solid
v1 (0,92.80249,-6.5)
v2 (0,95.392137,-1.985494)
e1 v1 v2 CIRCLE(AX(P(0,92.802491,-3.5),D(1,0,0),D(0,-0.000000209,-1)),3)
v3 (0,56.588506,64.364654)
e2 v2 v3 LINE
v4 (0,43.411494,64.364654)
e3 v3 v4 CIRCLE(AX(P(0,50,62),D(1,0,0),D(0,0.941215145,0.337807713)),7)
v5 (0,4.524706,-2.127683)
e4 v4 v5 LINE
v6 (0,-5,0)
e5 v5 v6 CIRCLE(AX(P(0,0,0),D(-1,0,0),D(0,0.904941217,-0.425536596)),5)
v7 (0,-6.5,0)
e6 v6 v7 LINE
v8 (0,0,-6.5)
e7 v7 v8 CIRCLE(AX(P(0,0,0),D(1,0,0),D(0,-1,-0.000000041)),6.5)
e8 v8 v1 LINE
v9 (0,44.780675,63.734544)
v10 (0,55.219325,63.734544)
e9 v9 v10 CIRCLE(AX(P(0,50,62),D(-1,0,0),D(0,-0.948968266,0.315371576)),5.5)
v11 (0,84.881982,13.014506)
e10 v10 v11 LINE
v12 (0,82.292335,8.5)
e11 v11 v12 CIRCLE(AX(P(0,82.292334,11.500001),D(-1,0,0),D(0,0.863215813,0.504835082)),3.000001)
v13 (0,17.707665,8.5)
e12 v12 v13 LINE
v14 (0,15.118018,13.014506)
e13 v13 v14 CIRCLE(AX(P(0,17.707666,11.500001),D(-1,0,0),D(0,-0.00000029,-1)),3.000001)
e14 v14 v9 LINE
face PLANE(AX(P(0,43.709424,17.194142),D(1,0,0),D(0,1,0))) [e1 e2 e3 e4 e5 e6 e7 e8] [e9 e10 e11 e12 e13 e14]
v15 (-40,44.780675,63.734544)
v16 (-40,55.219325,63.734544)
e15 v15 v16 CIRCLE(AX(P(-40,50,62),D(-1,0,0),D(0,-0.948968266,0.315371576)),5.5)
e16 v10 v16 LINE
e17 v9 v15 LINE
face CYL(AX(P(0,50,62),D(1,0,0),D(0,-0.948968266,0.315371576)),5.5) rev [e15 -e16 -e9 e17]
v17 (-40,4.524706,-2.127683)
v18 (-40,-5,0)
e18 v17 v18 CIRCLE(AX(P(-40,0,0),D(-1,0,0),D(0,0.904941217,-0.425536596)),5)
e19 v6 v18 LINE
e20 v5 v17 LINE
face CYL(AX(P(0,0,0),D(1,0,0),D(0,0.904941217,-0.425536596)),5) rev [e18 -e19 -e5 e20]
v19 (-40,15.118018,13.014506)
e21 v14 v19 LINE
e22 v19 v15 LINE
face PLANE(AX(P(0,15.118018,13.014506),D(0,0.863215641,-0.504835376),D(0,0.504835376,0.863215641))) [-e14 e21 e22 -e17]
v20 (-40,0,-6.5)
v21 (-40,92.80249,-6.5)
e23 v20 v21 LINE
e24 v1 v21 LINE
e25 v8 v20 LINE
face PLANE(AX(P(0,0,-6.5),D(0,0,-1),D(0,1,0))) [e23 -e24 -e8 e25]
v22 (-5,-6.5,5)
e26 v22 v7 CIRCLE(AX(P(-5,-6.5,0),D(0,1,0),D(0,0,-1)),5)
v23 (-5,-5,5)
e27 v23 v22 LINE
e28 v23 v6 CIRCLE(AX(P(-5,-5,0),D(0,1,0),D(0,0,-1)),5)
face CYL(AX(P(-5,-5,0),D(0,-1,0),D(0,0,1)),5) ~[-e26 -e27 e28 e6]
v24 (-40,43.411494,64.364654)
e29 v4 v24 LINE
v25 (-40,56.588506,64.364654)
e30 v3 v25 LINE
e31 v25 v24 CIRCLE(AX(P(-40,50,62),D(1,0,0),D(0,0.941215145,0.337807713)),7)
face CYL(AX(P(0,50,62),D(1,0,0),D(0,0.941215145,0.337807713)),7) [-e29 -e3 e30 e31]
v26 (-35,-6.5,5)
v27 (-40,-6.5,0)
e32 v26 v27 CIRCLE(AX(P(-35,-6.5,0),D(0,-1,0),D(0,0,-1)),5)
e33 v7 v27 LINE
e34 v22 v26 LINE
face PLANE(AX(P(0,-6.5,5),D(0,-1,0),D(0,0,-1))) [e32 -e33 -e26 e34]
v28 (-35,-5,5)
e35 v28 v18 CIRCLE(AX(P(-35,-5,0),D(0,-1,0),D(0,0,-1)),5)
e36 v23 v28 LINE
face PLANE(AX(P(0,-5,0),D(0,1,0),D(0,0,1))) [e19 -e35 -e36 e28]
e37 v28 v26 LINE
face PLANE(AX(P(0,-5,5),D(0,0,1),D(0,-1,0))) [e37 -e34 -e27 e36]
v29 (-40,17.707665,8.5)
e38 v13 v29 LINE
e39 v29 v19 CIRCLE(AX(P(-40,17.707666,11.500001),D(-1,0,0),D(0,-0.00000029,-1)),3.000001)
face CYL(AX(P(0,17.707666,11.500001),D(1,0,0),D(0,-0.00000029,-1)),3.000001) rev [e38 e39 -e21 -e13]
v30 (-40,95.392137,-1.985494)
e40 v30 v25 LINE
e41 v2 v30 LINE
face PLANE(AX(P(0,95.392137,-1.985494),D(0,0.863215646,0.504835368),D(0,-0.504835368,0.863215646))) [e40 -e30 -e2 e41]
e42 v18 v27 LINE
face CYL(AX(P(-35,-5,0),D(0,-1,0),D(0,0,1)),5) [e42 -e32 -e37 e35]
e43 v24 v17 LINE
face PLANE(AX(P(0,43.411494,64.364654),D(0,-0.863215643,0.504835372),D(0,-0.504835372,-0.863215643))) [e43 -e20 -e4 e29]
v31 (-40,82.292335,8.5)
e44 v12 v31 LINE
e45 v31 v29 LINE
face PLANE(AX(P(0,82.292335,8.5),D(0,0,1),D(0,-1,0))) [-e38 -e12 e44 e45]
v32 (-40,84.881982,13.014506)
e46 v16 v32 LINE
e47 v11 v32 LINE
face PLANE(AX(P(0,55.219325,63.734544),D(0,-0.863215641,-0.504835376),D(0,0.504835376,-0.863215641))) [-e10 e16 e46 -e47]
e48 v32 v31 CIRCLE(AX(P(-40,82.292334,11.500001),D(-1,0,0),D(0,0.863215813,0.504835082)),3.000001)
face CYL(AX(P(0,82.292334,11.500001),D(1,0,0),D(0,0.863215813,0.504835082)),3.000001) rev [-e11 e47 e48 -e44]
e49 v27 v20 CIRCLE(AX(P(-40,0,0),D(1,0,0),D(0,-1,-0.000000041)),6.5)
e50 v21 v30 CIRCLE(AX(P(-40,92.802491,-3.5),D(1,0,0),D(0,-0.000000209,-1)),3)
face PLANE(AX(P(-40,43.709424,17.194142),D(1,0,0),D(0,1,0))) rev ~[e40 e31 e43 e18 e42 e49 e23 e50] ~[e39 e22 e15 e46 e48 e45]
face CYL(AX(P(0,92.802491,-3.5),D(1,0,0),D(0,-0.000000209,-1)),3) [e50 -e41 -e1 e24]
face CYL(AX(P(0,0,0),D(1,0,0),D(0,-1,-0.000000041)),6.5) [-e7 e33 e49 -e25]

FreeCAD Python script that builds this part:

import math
import FreeCAD as App
import Part
import Sketcher

V = App.Vector
Q = App.Units.Quantity


def edges_at(feature, points):
    """Names of the edges that pass closest to the given points."""
    edges = feature.Shape.Edges
    near = lambda p: min(range(len(edges)), key=lambda i: edges[i].distToShape(Part.Vertex(*p))[0])
    return sorted({f"Edge{near(p) + 1}" for p in points})

doc = App.newDocument("Part")
params = doc.addObject("Spreadsheet::Sheet", "Params")
for row, (alias, value) in enumerate([
    ("sketch1_radius", "3 mm"),
    ("sketch1_radius2", "7 mm"),
    ("sketch1_radius3", "5 mm"),
    ("sketch1_radius4", "6.5 mm"),
    ("sketch1_radius5", "5.5 mm"),
    ("pad1_length", "40 mm"),
    ("fillet_radius", "5 mm"),
], start=1):
    params.set(f"A{row}", alias)
    params.set(f"B{row}", "=" + value)
    params.setAlias(f"B{row}", alias)

body = doc.addObject("PartDesign::Body", "Body")

# Sketch on YZ plane
sketch1 = body.newObject("Sketcher::SketchObject", "Sketch")
sketch1.AttachmentSupport = (doc.getObject("YZ_Plane"), [""])
sketch1.MapMode = "FlatFace"
sketch1.addGeometry(Part.LineSegment(V(-6.5, 5, 0), V(-6.5, 0, 0)), False)
sketch1.addGeometry(Part.ArcOfCircle(Part.Circle(V(0, 0, 0), V(0, 0, 1), 6.5), math.radians(-180), math.radians(-90)), False)
sketch1.addGeometry(Part.LineSegment(V(0, -6.5, 0), V(92.8, -6.5, 0)), False)
sketch1.addGeometry(Part.ArcOfCircle(Part.Circle(V(92.8, -3.5, 0), V(0, 0, 1), 3), math.radians(-90), math.radians(30)), False)
sketch1.addGeometry(Part.LineSegment(V(95.4, -2, 0), V(56.6, 64.4, 0)), False)
sketch1.addGeometry(Part.ArcOfCircle(Part.Circle(V(50, 62, 0), V(0, 0, 1), 7), math.radians(20), math.radians(160)), False)
sketch1.addGeometry(Part.LineSegment(V(43.4, 64.4, 0), V(4.5, -2.1, 0)), False)
sketch1.addGeometry(Part.ArcOfCircle(Part.Circle(V(0, 0, 0), V(0, 0, 1), 5), math.radians(180), math.radians(335)), False)
sketch1.addGeometry(Part.LineSegment(V(-5, 0, 0), V(-5, 5, 0)), False)
sketch1.addGeometry(Part.LineSegment(V(-5, 5, 0), V(-6.5, 5, 0)), False)
sketch1.addGeometry(Part.ArcOfCircle(Part.Circle(V(82.3, 11.5, 0), V(0, 0, 1), 3), math.radians(-90), math.radians(30)), False)
sketch1.addGeometry(Part.LineSegment(V(82.3, 8.5, 0), V(17.7, 8.5, 0)), False)
sketch1.addGeometry(Part.ArcOfCircle(Part.Circle(V(17.7, 11.5, 0), V(0, 0, 1), 3), math.radians(150), math.radians(270)), False)
sketch1.addGeometry(Part.LineSegment(V(15.1, 13, 0), V(44.8, 63.7, 0)), False)
sketch1.addGeometry(Part.ArcOfCircle(Part.Circle(V(50, 62, 0), V(0, 0, 1), 5.5), math.radians(18), math.radians(162)), False)
sketch1.addGeometry(Part.LineSegment(V(55.2, 63.7, 0), V(84.9, 13, 0)), False)
sketch1.addConstraint(Sketcher.Constraint("Tangent", 0, 2, 1, 1))
sketch1.addConstraint(Sketcher.Constraint("Tangent", 1, 2, 2, 1))
sketch1.addConstraint(Sketcher.Constraint("Tangent", 2, 2, 3, 1))
sketch1.addConstraint(Sketcher.Constraint("Tangent", 3, 2, 4, 1))
sketch1.addConstraint(Sketcher.Constraint("Coincident", 4, 2, 5, 1))
sketch1.addConstraint(Sketcher.Constraint("Coincident", 5, 2, 6, 1))
sketch1.addConstraint(Sketcher.Constraint("Coincident", 6, 2, 7, 2))
sketch1.addConstraint(Sketcher.Constraint("Tangent", 7, 1, 8, 1))
sketch1.addConstraint(Sketcher.Constraint("Coincident", 8, 2, 9, 1))
sketch1.addConstraint(Sketcher.Constraint("Coincident", 9, 2, 0, 1))
sketch1.addConstraint(Sketcher.Constraint("Tangent", 10, 1, 11, 1))
sketch1.addConstraint(Sketcher.Constraint("Tangent", 11, 2, 12, 2))
sketch1.addConstraint(Sketcher.Constraint("Tangent", 12, 1, 13, 1))
sketch1.addConstraint(Sketcher.Constraint("Coincident", 13, 2, 14, 2))
sketch1.addConstraint(Sketcher.Constraint("Coincident", 14, 1, 15, 1))
sketch1.addConstraint(Sketcher.Constraint("Tangent", 15, 2, 10, 2))
sketch1.addConstraint(Sketcher.Constraint("Vertical", 0))
sketch1.addConstraint(Sketcher.Constraint("Horizontal", 2))
sketch1.addConstraint(Sketcher.Constraint("Vertical", 8))
sketch1.addConstraint(Sketcher.Constraint("Horizontal", 9))
sketch1.addConstraint(Sketcher.Constraint("Horizontal", 11))
sketch1.addConstraint(Sketcher.Constraint("Coincident", 1, 3, -1, 1))
sketch1.addConstraint(Sketcher.Constraint("Coincident", 7, 3, -1, 1))
sketch1.addConstraint(Sketcher.Constraint("Coincident", 14, 3, 5, 3))
sketch1.addConstraint(Sketcher.Constraint("Equal", 3, 10))
sketch1.addConstraint(Sketcher.Constraint("Equal", 10, 12))
sketch1.addConstraint(Sketcher.Constraint("Parallel", 6, 13))
sketch1.addConstraint(Sketcher.Constraint("Parallel", 4, 15))
sketch1.addConstraint(Sketcher.Constraint("Horizontal", 4, 2, 5, 2))
sketch1.addConstraint(Sketcher.Constraint("Horizontal", 13, 2, 14, 1))
sketch1.addConstraint(Sketcher.Constraint("Horizontal", 12, 1, 15, 2))
sketch1.addConstraint(Sketcher.Constraint("Radius", 3, Q("3 mm")))
sketch1.addConstraint(Sketcher.Constraint("Radius", 5, Q("7 mm")))
sketch1.addConstraint(Sketcher.Constraint("Radius", 7, Q("5 mm")))
sketch1.addConstraint(Sketcher.Constraint("Radius", 1, Q("6.5 mm")))
sketch1.addConstraint(Sketcher.Constraint("Radius", 14, Q("5.5 mm")))
sketch1.addConstraint(Sketcher.Constraint("DistanceY", 0, 2, 0, 1, Q("5 mm")))
sketch1.addConstraint(Sketcher.Constraint("DistanceX", -1, 1, 5, 3, Q("50 mm")))
sketch1.addConstraint(Sketcher.Constraint("DistanceY", -1, 1, 5, 3, Q("62 mm")))
sketch1.addConstraint(Sketcher.Constraint("DistanceY", 3, 3, 10, 3, Q("15.000001 mm")))
sketch1.addConstraint(Sketcher.Constraint("DistanceX", 2, 1, 2, 2, Q("92.80249 mm")))
sketch1.addConstraint(Sketcher.Constraint("DistanceX", 11, 2, 11, 1, Q("64.58467 mm")))
sketch1.addConstraint(Sketcher.Constraint("Distance", 4, Q("76.863931 mm")))
sketch1.setExpression("Constraints[31]", "Params.sketch1_radius")
sketch1.setExpression("Constraints[32]", "Params.sketch1_radius2")
sketch1.setExpression("Constraints[33]", "Params.sketch1_radius3")
sketch1.setExpression("Constraints[34]", "Params.sketch1_radius4")
sketch1.setExpression("Constraints[35]", "Params.sketch1_radius5")
pad1 = body.newObject("PartDesign::Pad", "Pad")
pad1.Profile = sketch1
pad1.setExpression("Length", "Params.pad1_length")
pad1.Reversed = True
doc.recompute()

fillet = body.newObject("PartDesign::Fillet", "Fillet")
fillet.Base = (pad1, edges_at(pad1, [(0, -5.75, 5), (-40, -5.75, 5)]))
fillet.setExpression("Radius", "Params.fillet_radius")

doc.recompute()
